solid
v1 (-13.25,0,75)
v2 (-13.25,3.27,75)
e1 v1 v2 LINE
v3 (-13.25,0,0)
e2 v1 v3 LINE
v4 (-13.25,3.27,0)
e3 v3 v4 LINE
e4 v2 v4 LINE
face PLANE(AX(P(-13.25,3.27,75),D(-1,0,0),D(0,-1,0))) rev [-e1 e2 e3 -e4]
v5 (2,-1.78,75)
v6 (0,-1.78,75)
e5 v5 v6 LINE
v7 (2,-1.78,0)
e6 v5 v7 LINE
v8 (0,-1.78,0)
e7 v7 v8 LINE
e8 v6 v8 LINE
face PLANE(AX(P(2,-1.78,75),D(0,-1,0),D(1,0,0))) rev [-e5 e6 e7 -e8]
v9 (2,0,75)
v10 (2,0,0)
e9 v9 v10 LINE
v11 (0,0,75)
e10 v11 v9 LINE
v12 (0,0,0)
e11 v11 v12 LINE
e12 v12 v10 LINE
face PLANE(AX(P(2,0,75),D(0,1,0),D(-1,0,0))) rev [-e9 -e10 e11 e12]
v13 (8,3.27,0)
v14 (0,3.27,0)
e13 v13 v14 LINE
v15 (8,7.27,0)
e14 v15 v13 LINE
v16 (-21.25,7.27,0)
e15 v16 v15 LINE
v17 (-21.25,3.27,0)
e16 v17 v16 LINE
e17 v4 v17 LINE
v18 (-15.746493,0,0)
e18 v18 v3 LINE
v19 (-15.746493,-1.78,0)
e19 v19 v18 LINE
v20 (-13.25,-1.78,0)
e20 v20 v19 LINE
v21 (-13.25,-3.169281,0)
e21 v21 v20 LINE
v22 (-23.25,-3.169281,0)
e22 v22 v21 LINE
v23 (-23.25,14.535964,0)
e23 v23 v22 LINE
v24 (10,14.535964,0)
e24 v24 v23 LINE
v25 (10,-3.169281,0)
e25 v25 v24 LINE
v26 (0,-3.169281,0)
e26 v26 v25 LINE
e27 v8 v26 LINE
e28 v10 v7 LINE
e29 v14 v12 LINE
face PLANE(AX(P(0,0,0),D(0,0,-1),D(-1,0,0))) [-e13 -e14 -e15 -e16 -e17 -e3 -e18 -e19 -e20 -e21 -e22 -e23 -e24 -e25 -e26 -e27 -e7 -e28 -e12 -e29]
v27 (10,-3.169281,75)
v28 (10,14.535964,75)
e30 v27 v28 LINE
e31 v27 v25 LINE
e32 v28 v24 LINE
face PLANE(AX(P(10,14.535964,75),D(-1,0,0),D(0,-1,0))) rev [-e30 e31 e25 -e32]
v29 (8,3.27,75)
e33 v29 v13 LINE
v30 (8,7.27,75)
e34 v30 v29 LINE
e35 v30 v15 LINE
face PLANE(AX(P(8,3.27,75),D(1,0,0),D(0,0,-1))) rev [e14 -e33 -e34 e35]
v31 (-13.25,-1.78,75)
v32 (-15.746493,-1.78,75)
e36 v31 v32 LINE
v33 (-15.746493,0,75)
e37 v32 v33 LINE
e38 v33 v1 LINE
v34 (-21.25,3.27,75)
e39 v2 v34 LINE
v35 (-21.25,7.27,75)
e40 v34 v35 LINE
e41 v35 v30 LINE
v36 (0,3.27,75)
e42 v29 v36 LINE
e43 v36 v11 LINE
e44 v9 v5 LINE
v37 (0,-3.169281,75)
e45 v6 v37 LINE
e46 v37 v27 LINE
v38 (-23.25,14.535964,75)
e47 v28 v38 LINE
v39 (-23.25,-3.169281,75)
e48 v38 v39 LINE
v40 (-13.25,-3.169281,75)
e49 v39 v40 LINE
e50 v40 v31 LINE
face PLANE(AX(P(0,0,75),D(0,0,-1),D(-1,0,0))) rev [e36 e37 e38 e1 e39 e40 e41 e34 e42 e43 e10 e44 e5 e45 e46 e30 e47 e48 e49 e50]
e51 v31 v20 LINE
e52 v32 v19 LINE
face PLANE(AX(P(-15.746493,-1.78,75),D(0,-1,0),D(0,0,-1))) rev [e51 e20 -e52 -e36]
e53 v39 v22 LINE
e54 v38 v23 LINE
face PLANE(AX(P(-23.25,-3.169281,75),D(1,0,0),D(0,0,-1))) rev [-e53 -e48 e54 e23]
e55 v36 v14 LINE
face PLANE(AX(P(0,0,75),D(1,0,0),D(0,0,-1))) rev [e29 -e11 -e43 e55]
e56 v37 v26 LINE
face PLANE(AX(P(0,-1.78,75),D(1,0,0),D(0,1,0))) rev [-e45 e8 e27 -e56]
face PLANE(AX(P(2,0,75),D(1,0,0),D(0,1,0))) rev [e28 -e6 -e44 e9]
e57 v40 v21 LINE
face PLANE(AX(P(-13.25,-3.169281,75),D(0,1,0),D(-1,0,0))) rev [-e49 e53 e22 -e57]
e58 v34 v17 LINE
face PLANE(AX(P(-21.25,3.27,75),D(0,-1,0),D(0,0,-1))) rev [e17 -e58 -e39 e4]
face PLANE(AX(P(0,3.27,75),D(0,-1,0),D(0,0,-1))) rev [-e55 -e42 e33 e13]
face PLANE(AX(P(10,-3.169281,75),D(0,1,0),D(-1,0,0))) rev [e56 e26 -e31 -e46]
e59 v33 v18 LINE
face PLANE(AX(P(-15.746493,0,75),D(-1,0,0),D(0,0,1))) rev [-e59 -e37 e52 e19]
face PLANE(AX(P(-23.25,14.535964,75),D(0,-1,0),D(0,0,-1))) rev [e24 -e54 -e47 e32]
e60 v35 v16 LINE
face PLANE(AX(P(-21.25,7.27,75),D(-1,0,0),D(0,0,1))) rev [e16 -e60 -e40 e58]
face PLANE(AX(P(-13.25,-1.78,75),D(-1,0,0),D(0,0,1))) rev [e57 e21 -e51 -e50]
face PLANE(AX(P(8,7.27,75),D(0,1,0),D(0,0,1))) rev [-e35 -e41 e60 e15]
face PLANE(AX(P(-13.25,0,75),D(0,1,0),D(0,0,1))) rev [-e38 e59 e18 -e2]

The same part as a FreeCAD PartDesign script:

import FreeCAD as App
import Part
import Sketcher


def add_polygon(sketch, points):
    """Adds a closed chain of lines whose ends are joined by coincident constraints."""
    first, n = sketch.GeometryCount, len(points)
    for a, b in zip(points, points[1:] + points[:1]):
        sketch.addGeometry(Part.LineSegment(App.Vector(*a, 0), App.Vector(*b, 0)), False)
    for i in range(n):
        sketch.addConstraint(Sketcher.Constraint("Coincident", first + i, 2, first + (i + 1) % n, 1))

doc = App.newDocument("Part")
body = doc.addObject("PartDesign::Body", "Body")

sketch1 = body.newObject("Sketcher::SketchObject", "Sketch")
sketch1.AttachmentSupport = (doc.getObject("XY_Plane"), [""])
sketch1.MapMode = "FlatFace"
add_polygon(sketch1, [(10, 14.535964), (-23.25, 14.535964), (-23.25, -3.169281), (-13.25, -3.169281), (-13.25, -1.78), (-15.746493, -1.78), (-15.746493, 0), (-13.25, 0), (-13.25, 3.27), (-21.25, 3.27), (-21.25, 7.27), (8, 7.27), (8, 3.27), (0, 3.27), (0, 0), (2, 0), (2, -1.78), (0, -1.78), (0, -3.169281), (10, -3.169281)])
sketch1.addConstraint([
    Sketcher.Constraint("Horizontal", 0),
    Sketcher.Constraint("Vertical", 1),
    Sketcher.Constraint("Horizontal", 2),
    Sketcher.Constraint("Vertical", 3),
    Sketcher.Constraint("Horizontal", 4),
    Sketcher.Constraint("Vertical", 5),
    Sketcher.Constraint("Horizontal", 6),
    Sketcher.Constraint("Vertical", 7),
    Sketcher.Constraint("Horizontal", 8),
    Sketcher.Constraint("Vertical", 9),
    Sketcher.Constraint("Horizontal", 10),
    Sketcher.Constraint("Vertical", 11),
    Sketcher.Constraint("Horizontal", 12),
    Sketcher.Constraint("Vertical", 13),
    Sketcher.Constraint("Horizontal", 14),
    Sketcher.Constraint("Vertical", 15),
    Sketcher.Constraint("Horizontal", 16),
    Sketcher.Constraint("Vertical", 17),
    Sketcher.Constraint("Horizontal", 18),
    Sketcher.Constraint("Vertical", 19),
    Sketcher.Constraint("Coincident", 13, 2, -1, 1),
    Sketcher.Constraint("PointOnObject", 5, 2, -1),
    Sketcher.Constraint("PointOnObject", 16, 2, -2),
    Sketcher.Constraint("Horizontal", 8, 2, 11, 2),
    Sketcher.Constraint("Horizontal", 4, 2, 15, 2),
    Sketcher.Constraint("Horizontal", 2, 2, 17, 2),
    Sketcher.Constraint("Vertical", 3, 2, 6, 2),
    Sketcher.Constraint("Equal", 8, 12),
    Sketcher.Constraint("Equal", 2, 18),
    Sketcher.Constraint("DistanceX", 2, 1, 2, 2, 10.0),
    Sketcher.Constraint("DistanceX", 8, 2, 8, 1, 8.0),
    Sketcher.Constraint("DistanceX", 14, 1, 14, 2, 2.0),
    Sketcher.Constraint("DistanceY", 9, 1, 9, 2, 4.0),
    Sketcher.Constraint("DistanceX", 0, 2, 0, 1, 33.25),
    Sketcher.Constraint("DistanceY", 5, 1, 5, 2, 1.78),
    Sketcher.Constraint("DistanceY", 7, 1, 7, 2, 3.27),
    Sketcher.Constraint("DistanceY", 3, 1, 3, 2, 1.389281),
    Sketcher.Constraint("DistanceX", 4, 2, 4, 1, 2.496493),
    Sketcher.Constraint("DistanceY", 1, 2, 1, 1, 17.705245),
])
pad1 = body.newObject("PartDesign::Pad", "Pad")
pad1.Profile = sketch1
pad1.Length = 75

doc.recompute()
